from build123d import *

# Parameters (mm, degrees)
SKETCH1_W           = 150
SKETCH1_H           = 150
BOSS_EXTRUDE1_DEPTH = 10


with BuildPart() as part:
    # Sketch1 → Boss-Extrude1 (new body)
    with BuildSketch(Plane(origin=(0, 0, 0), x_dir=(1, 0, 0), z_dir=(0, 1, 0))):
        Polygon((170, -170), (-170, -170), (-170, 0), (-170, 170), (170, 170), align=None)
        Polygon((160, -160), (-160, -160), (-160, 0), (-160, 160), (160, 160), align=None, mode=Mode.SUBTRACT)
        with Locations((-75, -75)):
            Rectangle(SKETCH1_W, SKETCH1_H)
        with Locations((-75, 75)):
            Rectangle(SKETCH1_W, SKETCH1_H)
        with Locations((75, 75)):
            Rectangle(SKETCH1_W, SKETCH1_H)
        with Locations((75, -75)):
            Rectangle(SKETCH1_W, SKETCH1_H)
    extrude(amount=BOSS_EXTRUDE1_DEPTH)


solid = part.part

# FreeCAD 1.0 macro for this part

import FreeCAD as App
import Part
import Sketcher
from FreeCAD import Vector

doc = App.newDocument("Part")
body = doc.addObject("PartDesign::Body", "Body")
body.AllowCompound = True

sketch1 = doc.addObject("Sketcher::SketchObject", "Sketch")
body.addObject(sketch1)
sketch1.AttachmentSupport = (doc.XZ_Plane, [""])
sketch1.MapMode = "FlatFace"
sketch1.addGeometry([
    Part.LineSegment(Vector(-170, 170, 0), Vector(170, 170, 0)),
    Part.LineSegment(Vector(170, 170, 0), Vector(170, -170, 0)),
    Part.LineSegment(Vector(170, -170, 0), Vector(-170, -170, 0)),
    Part.LineSegment(Vector(-170, -170, 0), Vector(-170, 170, 0)),
    Part.LineSegment(Vector(160, 160, 0), Vector(-160, 160, 0)),
    Part.LineSegment(Vector(-160, 160, 0), Vector(-160, -160, 0)),
    Part.LineSegment(Vector(-160, -160, 0), Vector(160, -160, 0)),
    Part.LineSegment(Vector(160, -160, 0), Vector(160, 160, 0)),
    Part.LineSegment(Vector(-150, 150, 0), Vector(150, 150, 0)),
    Part.LineSegment(Vector(150, 150, 0), Vector(150, -150, 0)),
    Part.LineSegment(Vector(150, -150, 0), Vector(-150, -150, 0)),
    Part.LineSegment(Vector(-150, -150, 0), Vector(-150, 150, 0)),
], False)
sketch1.addConstraint([
    Sketcher.Constraint("Coincident", 0, 2, 1, 1),
    Sketcher.Constraint("Coincident", 1, 2, 2, 1),
    Sketcher.Constraint("Coincident", 2, 2, 3, 1),
    Sketcher.Constraint("Coincident", 3, 2, 0, 1),
    Sketcher.Constraint("Coincident", 4, 2, 5, 1),
    Sketcher.Constraint("Coincident", 5, 2, 6, 1),
    Sketcher.Constraint("Coincident", 6, 2, 7, 1),
    Sketcher.Constraint("Coincident", 7, 2, 4, 1),
    Sketcher.Constraint("Coincident", 8, 2, 9, 1),
    Sketcher.Constraint("Coincident", 9, 2, 10, 1),
    Sketcher.Constraint("Coincident", 10, 2, 11, 1),
    Sketcher.Constraint("Coincident", 11, 2, 8, 1),
    Sketcher.Constraint("Horizontal", 0),
    Sketcher.Constraint("Vertical", 1),
    Sketcher.Constraint("Horizontal", 2),
    Sketcher.Constraint("Vertical", 3),
    Sketcher.Constraint("Horizontal", 4),
    Sketcher.Constraint("Vertical", 5),
    Sketcher.Constraint("Horizontal", 6),
    Sketcher.Constraint("Vertical", 7),
    Sketcher.Constraint("Horizontal", 8),
    Sketcher.Constraint("Vertical", 9),
    Sketcher.Constraint("Horizontal", 10),
    Sketcher.Constraint("Vertical", 11),
    Sketcher.Constraint("Symmetric", 0, 2, 2, 2, -1, 1),
    Sketcher.Constraint("Symmetric", 4, 2, 6, 2, -1, 1),
    Sketcher.Constraint("Symmetric", 8, 2, 10, 2, -1, 1),
    Sketcher.Constraint("Equal", 2, 1),
    Sketcher.Constraint("Equal", 6, 5),
    Sketcher.Constraint("Equal", 10, 9),
    Sketcher.Constraint("DistanceX", 0, 1, 0, 2, 340.0),
    Sketcher.Constraint("DistanceX", 4, 2, 4, 1, 320.0),
    Sketcher.Constraint("DistanceX", 8, 1, 8, 2, 300.0),
])
pad1 = doc.addObject("PartDesign::Pad", "Pad")
body.addObject(pad1)
pad1.Profile = sketch1
pad1.Length = 10
pad1.Reversed = True

doc.recompute()
